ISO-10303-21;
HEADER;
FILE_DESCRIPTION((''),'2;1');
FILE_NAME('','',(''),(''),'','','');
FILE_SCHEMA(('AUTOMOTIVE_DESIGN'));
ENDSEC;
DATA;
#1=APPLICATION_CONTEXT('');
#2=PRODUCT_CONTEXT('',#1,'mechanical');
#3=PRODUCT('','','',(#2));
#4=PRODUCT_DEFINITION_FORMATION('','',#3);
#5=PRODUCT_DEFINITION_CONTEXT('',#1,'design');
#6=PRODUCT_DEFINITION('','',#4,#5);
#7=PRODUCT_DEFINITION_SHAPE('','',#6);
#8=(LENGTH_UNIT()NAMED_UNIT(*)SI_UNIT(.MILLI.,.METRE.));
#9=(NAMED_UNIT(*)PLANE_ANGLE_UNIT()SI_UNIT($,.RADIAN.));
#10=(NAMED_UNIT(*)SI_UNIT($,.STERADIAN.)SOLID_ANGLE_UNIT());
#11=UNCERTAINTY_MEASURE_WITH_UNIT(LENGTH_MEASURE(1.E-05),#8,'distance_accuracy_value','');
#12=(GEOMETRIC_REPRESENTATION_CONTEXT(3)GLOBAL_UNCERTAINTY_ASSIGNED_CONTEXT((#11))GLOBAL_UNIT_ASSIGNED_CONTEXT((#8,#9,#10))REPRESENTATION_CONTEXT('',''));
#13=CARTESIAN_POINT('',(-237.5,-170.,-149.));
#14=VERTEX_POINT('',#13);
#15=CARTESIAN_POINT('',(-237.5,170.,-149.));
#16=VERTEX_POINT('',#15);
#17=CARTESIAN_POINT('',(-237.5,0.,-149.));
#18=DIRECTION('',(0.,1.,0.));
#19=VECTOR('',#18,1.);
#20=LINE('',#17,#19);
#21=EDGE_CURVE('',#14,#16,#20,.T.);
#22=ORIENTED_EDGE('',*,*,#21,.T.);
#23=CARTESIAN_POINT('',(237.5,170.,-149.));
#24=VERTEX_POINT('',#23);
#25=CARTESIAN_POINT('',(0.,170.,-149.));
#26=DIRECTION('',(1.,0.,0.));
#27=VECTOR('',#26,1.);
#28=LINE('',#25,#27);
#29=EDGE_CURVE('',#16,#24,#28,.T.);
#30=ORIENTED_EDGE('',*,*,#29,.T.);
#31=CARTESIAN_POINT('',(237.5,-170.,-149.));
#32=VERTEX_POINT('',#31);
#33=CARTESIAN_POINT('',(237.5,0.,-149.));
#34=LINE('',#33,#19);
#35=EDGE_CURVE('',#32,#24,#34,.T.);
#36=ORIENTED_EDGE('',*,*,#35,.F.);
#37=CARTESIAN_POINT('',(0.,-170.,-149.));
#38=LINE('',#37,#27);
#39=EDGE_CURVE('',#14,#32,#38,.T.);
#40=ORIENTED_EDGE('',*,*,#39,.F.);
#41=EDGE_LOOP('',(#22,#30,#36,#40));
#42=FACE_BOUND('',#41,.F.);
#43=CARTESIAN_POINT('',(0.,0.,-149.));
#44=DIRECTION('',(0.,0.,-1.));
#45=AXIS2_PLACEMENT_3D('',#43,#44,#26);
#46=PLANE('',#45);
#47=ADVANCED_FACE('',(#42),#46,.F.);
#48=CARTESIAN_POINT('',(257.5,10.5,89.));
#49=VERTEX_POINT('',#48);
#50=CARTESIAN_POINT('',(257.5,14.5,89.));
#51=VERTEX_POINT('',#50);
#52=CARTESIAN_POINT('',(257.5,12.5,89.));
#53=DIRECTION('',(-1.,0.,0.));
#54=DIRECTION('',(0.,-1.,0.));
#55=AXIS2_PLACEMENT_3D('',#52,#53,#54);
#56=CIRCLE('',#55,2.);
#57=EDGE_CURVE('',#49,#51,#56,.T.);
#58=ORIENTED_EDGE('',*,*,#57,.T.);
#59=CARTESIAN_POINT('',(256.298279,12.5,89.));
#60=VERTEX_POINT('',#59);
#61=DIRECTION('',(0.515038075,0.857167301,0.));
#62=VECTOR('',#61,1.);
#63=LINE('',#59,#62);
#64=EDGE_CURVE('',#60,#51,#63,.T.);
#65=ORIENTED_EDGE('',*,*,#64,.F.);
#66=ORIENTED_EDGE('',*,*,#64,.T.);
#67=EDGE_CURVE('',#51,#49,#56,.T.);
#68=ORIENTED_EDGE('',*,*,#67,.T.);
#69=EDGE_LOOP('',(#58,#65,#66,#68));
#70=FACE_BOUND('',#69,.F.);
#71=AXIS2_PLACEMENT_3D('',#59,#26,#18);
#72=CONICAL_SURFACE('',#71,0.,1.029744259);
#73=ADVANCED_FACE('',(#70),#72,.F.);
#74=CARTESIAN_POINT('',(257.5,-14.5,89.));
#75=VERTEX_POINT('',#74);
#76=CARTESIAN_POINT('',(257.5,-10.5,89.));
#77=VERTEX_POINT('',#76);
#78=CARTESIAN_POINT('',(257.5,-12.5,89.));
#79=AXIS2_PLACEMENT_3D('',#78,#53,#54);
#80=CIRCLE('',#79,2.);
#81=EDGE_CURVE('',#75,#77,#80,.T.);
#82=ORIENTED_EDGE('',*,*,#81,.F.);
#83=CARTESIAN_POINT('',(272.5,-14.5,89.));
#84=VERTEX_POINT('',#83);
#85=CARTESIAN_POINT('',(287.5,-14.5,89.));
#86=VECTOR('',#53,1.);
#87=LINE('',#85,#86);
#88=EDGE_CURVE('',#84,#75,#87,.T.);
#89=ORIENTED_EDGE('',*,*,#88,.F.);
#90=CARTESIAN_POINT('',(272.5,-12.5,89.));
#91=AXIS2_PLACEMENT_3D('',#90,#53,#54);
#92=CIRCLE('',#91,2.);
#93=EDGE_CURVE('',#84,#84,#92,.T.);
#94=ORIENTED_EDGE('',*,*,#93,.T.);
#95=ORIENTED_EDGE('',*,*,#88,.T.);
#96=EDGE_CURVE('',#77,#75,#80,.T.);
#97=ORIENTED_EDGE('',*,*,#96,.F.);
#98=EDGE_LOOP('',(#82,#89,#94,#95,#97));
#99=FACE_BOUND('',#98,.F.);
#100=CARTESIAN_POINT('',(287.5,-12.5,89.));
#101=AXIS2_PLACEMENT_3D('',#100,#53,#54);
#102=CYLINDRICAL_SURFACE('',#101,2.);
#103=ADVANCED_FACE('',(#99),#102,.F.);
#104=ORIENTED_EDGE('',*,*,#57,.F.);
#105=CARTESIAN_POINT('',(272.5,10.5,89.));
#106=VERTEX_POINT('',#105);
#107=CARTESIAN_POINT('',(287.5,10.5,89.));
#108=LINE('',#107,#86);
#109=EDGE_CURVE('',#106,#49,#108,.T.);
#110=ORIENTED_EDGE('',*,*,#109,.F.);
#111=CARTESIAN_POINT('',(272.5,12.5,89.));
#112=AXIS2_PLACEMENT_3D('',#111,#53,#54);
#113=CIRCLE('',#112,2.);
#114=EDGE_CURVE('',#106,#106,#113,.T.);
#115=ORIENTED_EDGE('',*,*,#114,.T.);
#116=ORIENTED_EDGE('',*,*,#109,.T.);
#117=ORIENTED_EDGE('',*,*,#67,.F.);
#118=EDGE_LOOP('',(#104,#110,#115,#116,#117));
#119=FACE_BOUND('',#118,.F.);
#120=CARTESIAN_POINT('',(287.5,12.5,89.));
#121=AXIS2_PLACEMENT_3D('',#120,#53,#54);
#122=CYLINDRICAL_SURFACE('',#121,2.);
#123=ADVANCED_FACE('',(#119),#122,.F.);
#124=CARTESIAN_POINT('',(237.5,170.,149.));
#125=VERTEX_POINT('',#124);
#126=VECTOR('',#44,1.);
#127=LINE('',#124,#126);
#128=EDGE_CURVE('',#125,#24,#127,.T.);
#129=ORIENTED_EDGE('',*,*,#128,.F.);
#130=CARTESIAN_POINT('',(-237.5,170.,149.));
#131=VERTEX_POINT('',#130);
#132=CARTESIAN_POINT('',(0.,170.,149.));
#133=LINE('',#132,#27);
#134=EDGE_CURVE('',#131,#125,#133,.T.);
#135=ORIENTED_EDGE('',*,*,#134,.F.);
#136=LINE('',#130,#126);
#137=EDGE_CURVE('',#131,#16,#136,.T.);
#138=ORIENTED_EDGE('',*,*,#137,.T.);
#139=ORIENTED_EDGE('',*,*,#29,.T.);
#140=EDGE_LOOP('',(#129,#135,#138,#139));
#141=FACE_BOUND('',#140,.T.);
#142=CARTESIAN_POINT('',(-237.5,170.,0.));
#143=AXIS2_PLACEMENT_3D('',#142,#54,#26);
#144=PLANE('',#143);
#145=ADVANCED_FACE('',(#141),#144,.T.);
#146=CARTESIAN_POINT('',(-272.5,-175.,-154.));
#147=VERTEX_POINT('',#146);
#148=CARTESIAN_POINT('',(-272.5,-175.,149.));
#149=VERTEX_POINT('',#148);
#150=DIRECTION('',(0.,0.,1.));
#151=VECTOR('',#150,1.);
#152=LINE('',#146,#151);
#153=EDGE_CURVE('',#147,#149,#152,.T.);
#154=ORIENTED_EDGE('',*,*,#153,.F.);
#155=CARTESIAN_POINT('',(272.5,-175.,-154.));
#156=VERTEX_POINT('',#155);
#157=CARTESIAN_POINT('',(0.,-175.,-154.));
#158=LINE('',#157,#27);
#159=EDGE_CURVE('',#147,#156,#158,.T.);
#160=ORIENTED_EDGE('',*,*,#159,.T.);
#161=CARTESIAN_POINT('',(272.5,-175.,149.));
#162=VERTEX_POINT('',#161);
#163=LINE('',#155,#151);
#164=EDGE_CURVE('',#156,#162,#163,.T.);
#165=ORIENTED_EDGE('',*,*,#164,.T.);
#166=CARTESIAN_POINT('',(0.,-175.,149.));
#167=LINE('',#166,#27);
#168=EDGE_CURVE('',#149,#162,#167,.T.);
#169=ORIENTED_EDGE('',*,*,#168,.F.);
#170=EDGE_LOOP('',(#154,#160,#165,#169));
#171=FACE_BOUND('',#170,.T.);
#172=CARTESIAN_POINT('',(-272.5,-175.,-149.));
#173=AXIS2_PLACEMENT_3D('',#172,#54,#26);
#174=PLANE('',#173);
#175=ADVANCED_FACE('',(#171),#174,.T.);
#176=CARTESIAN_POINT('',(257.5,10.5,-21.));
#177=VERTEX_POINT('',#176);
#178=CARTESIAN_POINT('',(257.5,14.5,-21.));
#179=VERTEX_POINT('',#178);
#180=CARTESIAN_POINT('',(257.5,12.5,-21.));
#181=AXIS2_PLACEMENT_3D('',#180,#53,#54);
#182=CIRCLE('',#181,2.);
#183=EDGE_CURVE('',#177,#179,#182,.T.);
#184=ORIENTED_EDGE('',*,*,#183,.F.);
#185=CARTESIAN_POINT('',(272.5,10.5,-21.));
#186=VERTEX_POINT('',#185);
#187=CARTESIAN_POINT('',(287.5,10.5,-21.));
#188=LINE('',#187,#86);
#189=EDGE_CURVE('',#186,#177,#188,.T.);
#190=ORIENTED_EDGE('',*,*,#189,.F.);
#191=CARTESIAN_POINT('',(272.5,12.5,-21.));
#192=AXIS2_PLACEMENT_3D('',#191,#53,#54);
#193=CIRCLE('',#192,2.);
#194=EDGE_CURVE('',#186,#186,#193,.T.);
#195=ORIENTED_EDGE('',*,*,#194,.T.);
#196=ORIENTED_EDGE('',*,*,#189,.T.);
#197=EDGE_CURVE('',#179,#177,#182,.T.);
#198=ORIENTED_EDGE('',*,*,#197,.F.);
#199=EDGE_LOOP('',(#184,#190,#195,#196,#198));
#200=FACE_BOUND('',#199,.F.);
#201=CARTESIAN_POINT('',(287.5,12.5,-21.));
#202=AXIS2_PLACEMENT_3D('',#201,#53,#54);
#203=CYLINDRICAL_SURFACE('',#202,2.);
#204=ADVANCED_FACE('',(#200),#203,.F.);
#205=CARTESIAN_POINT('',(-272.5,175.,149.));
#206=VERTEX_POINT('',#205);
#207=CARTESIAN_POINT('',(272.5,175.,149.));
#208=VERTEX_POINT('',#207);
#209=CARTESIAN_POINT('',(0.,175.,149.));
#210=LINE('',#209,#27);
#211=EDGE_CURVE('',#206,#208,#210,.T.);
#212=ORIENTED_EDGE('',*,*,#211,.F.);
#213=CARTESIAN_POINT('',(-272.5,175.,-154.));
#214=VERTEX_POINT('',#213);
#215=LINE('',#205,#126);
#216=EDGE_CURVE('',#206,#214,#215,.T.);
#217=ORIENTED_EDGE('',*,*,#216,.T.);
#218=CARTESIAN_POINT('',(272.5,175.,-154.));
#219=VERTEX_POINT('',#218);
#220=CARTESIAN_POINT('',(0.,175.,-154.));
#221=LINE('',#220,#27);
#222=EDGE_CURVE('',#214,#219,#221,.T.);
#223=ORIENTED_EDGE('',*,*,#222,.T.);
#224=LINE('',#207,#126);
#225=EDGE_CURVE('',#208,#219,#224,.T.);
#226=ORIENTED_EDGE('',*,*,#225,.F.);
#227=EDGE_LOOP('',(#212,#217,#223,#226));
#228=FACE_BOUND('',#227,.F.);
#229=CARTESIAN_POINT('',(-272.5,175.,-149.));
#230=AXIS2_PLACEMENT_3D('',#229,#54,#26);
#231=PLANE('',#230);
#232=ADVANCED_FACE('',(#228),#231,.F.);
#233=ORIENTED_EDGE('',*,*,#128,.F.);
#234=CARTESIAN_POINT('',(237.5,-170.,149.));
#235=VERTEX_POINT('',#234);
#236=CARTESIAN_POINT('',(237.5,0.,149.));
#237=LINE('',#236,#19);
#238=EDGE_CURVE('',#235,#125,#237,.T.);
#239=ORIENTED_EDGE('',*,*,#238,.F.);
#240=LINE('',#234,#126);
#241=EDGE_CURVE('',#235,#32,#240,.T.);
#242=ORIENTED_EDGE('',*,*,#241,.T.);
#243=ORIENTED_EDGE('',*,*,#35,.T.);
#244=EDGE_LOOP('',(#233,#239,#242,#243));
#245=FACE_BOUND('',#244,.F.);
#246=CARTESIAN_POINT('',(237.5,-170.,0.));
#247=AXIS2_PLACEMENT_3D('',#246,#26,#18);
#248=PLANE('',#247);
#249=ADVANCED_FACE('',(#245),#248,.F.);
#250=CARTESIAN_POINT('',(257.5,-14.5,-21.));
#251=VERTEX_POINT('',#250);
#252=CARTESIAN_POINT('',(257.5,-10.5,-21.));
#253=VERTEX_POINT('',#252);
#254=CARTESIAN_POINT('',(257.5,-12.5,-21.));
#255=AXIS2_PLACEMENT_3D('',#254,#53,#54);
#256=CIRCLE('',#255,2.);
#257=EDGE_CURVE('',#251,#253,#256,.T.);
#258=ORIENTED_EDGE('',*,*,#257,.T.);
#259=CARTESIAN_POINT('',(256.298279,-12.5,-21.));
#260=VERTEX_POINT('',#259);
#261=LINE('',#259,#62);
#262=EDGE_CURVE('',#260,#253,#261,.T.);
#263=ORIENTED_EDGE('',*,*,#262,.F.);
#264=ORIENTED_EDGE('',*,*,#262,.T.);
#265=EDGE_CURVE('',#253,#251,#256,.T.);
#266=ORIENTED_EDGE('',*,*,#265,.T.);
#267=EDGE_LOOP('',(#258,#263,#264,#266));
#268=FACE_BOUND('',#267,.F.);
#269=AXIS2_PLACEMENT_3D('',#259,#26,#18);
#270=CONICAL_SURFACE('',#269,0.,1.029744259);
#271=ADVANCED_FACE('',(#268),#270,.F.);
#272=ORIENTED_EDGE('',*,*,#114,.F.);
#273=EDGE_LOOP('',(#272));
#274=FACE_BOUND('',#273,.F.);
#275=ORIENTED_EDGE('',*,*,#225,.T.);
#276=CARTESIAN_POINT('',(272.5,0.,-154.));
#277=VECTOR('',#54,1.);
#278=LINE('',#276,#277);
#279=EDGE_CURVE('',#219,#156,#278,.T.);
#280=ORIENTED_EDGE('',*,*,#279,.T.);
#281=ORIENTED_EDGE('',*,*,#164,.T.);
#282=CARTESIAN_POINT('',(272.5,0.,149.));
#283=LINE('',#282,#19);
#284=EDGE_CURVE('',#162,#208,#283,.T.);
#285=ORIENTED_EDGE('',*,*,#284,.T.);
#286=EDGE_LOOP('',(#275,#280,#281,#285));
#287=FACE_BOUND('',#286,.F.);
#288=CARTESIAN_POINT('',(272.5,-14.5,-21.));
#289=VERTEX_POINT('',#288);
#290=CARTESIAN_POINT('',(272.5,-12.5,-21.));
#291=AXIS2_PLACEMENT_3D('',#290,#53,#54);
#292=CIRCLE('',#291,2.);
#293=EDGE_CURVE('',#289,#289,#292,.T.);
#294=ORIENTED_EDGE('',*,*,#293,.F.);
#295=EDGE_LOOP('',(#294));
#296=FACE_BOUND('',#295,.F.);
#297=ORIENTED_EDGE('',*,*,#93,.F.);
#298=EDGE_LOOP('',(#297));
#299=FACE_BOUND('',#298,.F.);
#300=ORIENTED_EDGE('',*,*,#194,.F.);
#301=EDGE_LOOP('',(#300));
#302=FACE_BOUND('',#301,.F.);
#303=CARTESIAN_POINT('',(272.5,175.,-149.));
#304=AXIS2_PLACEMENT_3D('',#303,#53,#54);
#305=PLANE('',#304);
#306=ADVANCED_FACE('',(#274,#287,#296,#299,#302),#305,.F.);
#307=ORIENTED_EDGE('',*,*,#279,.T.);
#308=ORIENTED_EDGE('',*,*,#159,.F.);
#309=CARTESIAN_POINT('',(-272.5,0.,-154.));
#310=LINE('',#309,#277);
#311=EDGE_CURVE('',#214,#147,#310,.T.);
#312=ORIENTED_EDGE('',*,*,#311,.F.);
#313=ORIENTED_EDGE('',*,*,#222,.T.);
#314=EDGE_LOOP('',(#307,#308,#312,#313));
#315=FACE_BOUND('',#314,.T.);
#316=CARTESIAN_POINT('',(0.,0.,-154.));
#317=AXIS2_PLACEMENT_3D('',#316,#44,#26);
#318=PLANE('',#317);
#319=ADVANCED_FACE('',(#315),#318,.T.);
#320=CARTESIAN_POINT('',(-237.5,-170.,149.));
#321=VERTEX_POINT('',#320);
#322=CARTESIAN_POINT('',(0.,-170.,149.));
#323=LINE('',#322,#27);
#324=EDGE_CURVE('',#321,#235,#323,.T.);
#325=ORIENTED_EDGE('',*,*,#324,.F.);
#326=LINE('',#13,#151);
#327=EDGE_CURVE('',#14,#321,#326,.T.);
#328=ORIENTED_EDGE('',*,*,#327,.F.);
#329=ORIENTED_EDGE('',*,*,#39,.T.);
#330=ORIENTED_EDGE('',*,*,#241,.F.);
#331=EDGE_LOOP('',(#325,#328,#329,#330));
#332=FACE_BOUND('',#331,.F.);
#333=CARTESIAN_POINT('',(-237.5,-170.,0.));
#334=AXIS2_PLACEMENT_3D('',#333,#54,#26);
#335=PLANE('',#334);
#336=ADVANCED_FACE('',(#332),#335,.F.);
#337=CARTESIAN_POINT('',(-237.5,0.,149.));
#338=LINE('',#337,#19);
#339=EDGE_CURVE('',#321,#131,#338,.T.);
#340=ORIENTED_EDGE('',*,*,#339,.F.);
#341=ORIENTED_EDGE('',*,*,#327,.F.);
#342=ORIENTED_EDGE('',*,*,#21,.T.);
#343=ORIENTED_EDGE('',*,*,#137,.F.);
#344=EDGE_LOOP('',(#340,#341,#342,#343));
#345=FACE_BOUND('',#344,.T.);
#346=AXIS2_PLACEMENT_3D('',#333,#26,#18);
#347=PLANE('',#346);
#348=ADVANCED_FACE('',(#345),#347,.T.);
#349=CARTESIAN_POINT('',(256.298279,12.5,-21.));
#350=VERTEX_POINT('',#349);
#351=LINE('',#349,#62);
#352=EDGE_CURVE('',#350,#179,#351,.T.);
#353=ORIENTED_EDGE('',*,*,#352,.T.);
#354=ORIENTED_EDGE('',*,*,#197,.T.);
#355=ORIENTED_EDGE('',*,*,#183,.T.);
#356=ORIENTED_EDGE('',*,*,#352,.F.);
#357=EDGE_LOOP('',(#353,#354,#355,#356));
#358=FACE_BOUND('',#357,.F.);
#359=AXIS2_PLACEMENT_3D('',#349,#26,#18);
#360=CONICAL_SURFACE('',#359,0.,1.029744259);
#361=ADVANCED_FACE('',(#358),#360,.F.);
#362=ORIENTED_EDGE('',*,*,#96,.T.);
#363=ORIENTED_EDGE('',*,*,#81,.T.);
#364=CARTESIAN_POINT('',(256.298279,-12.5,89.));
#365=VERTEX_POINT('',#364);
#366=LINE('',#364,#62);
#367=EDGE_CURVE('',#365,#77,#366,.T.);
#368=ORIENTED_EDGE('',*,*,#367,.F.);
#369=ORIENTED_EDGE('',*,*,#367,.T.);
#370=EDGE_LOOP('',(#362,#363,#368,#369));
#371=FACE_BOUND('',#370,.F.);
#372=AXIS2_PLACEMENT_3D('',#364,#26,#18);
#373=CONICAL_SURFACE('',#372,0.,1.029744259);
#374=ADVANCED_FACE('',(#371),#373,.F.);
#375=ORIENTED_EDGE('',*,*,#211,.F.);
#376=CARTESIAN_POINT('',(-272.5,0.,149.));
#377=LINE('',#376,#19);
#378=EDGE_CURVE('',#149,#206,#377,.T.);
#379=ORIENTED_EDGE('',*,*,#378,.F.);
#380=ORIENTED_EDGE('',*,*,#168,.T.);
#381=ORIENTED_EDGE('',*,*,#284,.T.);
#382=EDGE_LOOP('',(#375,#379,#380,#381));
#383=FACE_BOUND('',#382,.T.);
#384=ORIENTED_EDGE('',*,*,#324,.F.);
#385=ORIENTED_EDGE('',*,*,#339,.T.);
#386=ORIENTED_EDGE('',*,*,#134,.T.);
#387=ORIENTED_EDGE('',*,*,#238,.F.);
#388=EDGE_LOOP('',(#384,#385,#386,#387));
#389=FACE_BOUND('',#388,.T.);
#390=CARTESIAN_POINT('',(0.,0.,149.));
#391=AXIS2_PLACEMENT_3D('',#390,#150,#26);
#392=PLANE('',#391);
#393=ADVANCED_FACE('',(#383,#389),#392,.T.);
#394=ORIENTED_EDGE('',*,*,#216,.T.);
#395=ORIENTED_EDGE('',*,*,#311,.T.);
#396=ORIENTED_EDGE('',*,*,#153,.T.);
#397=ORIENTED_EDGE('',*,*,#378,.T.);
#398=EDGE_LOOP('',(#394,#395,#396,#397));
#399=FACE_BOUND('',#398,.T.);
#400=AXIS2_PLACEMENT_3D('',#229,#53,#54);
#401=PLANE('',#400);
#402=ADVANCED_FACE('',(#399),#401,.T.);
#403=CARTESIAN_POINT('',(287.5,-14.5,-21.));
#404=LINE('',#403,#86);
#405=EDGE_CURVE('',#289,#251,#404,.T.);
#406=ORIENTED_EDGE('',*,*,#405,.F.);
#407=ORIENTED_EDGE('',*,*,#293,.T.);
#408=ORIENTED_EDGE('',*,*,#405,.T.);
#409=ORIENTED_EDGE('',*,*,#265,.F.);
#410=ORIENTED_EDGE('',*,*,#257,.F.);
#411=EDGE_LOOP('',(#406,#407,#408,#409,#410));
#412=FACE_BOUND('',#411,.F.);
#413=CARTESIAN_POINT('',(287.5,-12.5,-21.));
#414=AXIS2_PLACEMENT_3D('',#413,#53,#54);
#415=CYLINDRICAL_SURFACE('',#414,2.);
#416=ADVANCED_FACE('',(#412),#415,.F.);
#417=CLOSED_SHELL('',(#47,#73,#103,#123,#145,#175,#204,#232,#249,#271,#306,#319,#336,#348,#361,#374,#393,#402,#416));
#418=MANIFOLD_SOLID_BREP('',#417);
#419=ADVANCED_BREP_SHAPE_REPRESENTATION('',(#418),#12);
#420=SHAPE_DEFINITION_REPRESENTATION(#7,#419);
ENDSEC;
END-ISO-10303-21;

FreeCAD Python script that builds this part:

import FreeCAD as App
import Part
import Sketcher
from FreeCAD import Vector


def add_polygon(sketch, points):
    """Adds a closed chain of lines whose ends are joined by coincident constraints."""
    first, n = sketch.GeometryCount, len(points)
    for a, b in zip(points, points[1:] + points[:1]):
        sketch.addGeometry(Part.LineSegment(App.Vector(*a, 0), App.Vector(*b, 0)), False)
    for i in range(n):
        sketch.addConstraint(Sketcher.Constraint("Coincident", first + i, 2, first + (i + 1) % n, 1))

doc = App.newDocument("Part")
body = doc.addObject("PartDesign::Body", "Body")

sketch1 = body.newObject("Sketcher::SketchObject", "Sketch")
sketch1.AttachmentSupport = (doc.getObject("XY_Plane"), [""])
sketch1.MapMode = "FlatFace"
add_polygon(sketch1, [(-272, 175), (-272, -175), (272, -175), (272, 175)])
add_polygon(sketch1, [(238, -170), (-238, -170), (-238, 170), (238, 170)])
sketch1.addConstraint([
    Sketcher.Constraint("Vertical", 0),
    Sketcher.Constraint("Horizontal", 1),
    Sketcher.Constraint("Vertical", 2),
    Sketcher.Constraint("Horizontal", 3),
    Sketcher.Constraint("Horizontal", 4),
    Sketcher.Constraint("Vertical", 5),
    Sketcher.Constraint("Horizontal", 6),
    Sketcher.Constraint("Vertical", 7),
    Sketcher.Constraint("Symmetric", 0, 2, 2, 2, -1, 1),
    Sketcher.Constraint("Symmetric", 4, 2, 6, 2, -1, 1),
    Sketcher.Constraint("DistanceX", 1, 1, 1, 2, 545.0),
    Sketcher.Constraint("DistanceX", 4, 2, 4, 1, 475.0),
    Sketcher.Constraint("DistanceY", 0, 2, 0, 1, 350.0),
    Sketcher.Constraint("DistanceY", 5, 1, 5, 2, 340.0),
])
pad1 = body.newObject("PartDesign::Pad", "Pad")
pad1.Profile = sketch1
pad1.Length = 298
pad1.Midplane = True

sketch2 = body.newObject("Sketcher::SketchObject", "Sketch001")
sketch2.AttachmentSupport = (doc.getObject("XY_Plane"), [""])
sketch2.MapMode = "FlatFace"
sketch2.AttachmentOffset = App.Placement(Vector(0, 0, -149), App.Rotation())
add_polygon(sketch2, [(-272, -175), (-272, 175), (272, 175), (272, -175)])
sketch2.addConstraint([
    Sketcher.Constraint("Vertical", 0),
    Sketcher.Constraint("Horizontal", 1),
    Sketcher.Constraint("Vertical", 2),
    Sketcher.Constraint("Horizontal", 3),
    Sketcher.Constraint("Symmetric", 0, 2, 2, 2, -1, 1),
    Sketcher.Constraint("DistanceX", 1, 1, 1, 2, 545.0),
    Sketcher.Constraint("DistanceY", 0, 1, 0, 2, 350.0),
])
pad2 = body.newObject("PartDesign::Pad", "Pad001")
pad2.Profile = sketch2
pad2.Length = 5
pad2.Reversed = True

sketch3 = body.newObject("Sketcher::SketchObject", "Sketch002")
sketch3.AttachmentSupport = (doc.getObject("YZ_Plane"), [""])
sketch3.MapMode = "FlatFace"
sketch3.AttachmentOffset = App.Placement(Vector(0, 0, 272.5), App.Rotation())
sketch3.addGeometry([
    Part.Circle(Vector(-12.5, 89, 0), Vector(0, 0, 1), 2),
    Part.Circle(Vector(12.5, 89, 0), Vector(0, 0, 1), 2),
    Part.Circle(Vector(-12.5, -21, 0), Vector(0, 0, 1), 2),
    Part.Circle(Vector(12.5, -21, 0), Vector(0, 0, 1), 2),
], False)
sketch3.addConstraint([
    Sketcher.Constraint("Equal", 0, 1),
    Sketcher.Constraint("Equal", 1, 2),
    Sketcher.Constraint("Equal", 2, 3),
    Sketcher.Constraint("Symmetric", 0, 3, 1, 3, -2),
    Sketcher.Constraint("Symmetric", 2, 3, 3, 3, -2),
    Sketcher.Constraint("Vertical", 0, 3, 2, 3),
    Sketcher.Constraint("Diameter", 0, 4.0),
    Sketcher.Constraint("DistanceY", -1, 1, 0, 3, 89.0),
    Sketcher.Constraint("DistanceY", 2, 3, -1, 1, 21.0),
    Sketcher.Constraint("DistanceX", 0, 3, 1, 3, 25.0),
])
doc.recompute()
hole = body.newObject("PartDesign::Hole", "Hole")
hole.Profile = sketch3
hole.ThreadType = "None"
hole.Diameter = 4
hole.DepthType = "Dimension"
hole.Depth = 15
hole.DrillPoint = "Angled"
hole.DrillPointAngle = 118

doc.recompute()
